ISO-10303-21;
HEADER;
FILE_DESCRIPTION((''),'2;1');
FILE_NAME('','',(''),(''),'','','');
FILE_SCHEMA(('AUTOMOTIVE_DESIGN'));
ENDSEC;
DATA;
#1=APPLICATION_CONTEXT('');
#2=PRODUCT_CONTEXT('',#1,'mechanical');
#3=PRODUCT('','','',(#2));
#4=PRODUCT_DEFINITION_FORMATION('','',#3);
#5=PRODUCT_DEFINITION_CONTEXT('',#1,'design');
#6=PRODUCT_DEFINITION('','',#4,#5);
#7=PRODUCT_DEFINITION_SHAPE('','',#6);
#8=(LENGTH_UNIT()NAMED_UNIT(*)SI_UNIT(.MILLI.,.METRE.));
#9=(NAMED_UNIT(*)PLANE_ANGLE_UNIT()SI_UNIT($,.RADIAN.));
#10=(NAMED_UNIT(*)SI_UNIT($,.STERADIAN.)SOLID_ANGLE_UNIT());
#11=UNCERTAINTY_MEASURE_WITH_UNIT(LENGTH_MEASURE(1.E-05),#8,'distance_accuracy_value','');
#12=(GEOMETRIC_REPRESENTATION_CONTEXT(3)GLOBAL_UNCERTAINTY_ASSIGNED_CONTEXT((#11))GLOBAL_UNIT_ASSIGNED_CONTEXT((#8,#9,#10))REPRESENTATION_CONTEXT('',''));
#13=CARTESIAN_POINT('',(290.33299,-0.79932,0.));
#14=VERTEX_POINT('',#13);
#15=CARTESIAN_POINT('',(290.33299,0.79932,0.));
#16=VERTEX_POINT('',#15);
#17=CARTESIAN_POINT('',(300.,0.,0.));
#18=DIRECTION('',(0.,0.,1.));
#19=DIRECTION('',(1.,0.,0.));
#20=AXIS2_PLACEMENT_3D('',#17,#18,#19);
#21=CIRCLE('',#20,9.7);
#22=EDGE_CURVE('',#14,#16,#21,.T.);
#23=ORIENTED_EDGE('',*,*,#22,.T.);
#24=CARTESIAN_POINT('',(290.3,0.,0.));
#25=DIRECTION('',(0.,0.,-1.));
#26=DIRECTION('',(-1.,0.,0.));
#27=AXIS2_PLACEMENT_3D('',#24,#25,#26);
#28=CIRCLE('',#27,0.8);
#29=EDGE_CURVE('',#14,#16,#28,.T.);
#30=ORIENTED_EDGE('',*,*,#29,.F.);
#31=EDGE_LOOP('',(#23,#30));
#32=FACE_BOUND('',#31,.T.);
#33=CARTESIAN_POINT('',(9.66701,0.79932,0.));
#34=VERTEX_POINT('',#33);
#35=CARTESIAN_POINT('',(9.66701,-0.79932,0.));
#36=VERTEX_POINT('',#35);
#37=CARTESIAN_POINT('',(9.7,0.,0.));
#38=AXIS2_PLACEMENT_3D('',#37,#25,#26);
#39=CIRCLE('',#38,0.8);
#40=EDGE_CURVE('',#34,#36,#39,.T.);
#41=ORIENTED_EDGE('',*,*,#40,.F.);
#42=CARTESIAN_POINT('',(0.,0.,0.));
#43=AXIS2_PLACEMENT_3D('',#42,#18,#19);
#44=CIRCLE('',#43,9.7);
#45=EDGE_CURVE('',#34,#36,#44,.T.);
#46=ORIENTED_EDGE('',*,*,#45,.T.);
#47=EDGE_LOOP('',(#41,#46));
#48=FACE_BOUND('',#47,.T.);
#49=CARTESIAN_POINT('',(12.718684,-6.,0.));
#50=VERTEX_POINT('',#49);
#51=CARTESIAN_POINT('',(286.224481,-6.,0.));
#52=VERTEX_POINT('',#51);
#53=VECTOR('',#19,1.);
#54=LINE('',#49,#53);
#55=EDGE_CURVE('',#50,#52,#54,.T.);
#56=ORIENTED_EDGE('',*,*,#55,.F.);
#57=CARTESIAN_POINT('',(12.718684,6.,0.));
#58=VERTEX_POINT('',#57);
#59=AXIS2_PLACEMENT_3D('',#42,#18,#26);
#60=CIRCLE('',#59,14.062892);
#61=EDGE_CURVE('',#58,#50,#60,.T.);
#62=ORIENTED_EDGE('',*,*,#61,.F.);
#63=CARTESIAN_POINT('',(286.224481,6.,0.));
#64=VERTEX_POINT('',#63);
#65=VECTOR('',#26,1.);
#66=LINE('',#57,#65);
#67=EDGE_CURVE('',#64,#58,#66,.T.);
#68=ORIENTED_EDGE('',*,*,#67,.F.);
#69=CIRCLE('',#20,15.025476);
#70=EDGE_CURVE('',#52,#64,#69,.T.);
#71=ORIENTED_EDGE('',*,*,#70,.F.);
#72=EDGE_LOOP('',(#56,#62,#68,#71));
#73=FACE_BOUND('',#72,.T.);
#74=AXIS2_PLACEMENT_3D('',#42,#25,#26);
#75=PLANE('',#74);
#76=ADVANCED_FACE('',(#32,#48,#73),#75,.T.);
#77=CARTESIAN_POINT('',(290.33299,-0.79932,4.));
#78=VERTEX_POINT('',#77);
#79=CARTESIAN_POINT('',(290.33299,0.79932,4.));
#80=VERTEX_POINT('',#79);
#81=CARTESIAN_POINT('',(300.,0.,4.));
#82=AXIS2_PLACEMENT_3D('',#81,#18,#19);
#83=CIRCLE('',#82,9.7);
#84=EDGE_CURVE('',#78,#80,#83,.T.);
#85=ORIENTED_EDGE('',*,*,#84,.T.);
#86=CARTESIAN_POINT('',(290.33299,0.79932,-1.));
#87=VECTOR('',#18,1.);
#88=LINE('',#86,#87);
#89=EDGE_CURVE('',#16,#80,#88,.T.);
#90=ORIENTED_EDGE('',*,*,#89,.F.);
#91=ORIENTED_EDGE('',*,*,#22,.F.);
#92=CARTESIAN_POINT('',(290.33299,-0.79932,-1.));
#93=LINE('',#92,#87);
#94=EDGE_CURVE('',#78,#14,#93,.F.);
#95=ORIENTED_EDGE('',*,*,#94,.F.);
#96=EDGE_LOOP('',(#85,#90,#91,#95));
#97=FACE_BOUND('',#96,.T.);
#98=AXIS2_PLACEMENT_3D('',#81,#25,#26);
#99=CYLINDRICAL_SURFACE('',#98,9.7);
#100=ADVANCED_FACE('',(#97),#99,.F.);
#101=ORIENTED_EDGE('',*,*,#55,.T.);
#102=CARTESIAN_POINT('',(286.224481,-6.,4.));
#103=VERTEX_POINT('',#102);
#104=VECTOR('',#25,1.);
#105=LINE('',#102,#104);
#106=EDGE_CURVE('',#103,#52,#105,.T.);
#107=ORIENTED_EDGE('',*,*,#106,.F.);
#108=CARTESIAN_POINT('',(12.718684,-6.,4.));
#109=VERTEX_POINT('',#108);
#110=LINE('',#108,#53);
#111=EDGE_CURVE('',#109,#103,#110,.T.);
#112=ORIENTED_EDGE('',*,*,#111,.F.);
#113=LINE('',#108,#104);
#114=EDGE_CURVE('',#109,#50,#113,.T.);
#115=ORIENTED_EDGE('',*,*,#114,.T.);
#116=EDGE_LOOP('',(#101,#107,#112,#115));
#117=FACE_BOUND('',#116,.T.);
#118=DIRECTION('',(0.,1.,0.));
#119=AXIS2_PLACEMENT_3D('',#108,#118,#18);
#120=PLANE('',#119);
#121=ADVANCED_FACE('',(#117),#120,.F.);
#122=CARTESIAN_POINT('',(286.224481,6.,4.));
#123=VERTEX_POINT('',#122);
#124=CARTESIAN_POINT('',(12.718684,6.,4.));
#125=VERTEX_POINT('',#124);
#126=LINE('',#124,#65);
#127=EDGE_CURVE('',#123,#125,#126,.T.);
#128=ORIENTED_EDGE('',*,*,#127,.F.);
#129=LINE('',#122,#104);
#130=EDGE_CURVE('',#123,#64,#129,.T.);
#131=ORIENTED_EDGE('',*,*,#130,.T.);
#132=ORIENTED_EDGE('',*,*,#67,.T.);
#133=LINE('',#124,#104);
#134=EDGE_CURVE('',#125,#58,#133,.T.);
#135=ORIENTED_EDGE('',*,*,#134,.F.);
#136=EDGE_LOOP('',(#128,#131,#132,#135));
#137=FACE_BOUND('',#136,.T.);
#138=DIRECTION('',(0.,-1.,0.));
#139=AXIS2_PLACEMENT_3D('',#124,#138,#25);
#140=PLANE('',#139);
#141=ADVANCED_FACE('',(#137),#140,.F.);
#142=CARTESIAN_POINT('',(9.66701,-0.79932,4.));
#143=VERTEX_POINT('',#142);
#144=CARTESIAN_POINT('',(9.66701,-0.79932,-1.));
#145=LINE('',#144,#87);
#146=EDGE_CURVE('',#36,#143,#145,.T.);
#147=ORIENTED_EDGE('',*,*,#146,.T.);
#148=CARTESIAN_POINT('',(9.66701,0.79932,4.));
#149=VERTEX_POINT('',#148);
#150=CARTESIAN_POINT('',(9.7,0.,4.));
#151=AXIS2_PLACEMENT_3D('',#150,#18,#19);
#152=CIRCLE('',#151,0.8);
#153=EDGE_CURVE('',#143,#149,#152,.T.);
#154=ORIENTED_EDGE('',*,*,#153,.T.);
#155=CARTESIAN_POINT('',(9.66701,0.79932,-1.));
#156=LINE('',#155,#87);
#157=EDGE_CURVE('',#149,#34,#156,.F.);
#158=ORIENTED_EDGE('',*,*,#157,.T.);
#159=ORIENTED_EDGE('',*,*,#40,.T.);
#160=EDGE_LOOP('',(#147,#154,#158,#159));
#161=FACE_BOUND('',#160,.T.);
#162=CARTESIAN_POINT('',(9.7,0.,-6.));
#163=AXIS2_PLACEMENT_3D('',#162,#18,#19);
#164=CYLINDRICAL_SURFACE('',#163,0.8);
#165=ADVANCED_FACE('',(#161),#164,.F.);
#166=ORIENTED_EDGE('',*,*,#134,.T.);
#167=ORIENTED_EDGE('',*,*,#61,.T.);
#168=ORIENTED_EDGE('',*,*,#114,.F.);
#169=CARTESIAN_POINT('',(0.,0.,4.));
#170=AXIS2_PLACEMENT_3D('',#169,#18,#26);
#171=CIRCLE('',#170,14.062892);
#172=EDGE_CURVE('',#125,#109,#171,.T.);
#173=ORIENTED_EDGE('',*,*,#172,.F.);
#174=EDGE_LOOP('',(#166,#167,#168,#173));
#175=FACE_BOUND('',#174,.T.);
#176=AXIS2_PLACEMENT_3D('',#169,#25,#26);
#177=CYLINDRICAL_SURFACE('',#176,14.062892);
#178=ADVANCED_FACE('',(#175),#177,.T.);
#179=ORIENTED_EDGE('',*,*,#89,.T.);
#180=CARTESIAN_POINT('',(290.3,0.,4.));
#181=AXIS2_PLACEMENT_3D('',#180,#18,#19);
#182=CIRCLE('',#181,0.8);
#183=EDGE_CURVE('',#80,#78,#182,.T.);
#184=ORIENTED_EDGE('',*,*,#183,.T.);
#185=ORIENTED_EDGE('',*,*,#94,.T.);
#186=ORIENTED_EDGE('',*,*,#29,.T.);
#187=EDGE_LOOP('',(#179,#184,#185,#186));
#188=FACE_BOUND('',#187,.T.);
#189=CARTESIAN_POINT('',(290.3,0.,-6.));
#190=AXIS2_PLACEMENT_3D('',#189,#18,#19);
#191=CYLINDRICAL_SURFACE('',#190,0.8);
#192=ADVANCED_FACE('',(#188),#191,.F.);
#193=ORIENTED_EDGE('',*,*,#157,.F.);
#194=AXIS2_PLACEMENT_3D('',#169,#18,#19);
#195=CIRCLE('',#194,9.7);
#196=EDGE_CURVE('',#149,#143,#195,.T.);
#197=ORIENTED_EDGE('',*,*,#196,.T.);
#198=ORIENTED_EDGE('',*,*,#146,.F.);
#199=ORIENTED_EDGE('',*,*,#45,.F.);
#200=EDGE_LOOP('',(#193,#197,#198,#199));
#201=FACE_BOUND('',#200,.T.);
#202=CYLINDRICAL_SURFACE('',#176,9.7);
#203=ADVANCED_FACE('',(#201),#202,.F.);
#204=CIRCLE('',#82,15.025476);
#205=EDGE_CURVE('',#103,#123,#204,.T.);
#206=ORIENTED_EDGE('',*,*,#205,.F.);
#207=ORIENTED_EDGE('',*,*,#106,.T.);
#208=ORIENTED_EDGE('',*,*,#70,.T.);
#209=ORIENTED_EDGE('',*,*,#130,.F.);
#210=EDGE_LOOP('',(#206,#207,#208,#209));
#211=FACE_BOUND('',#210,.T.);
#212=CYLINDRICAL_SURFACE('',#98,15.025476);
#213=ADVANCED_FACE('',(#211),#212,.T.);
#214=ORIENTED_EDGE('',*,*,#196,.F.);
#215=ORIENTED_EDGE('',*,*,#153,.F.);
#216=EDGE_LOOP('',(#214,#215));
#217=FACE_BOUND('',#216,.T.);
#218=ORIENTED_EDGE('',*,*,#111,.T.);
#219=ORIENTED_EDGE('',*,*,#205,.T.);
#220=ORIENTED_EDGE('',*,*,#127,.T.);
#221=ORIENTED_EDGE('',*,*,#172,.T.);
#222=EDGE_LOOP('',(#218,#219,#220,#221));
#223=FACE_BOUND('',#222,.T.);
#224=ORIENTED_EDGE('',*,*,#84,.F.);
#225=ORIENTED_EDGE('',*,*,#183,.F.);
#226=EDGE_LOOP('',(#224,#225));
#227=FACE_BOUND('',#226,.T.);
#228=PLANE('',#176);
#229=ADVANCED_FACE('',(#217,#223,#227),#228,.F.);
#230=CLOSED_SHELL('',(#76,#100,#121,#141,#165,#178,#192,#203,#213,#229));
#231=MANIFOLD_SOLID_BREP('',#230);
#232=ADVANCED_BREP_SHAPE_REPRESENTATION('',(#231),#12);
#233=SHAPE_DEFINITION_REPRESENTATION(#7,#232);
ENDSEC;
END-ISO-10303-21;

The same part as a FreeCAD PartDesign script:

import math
import FreeCAD as App
import Part
import Sketcher

V = App.Vector
Q = App.Units.Quantity

doc = App.newDocument("Part")
body = doc.addObject("PartDesign::Body", "Body")

# Sketch on XY plane
sketch1 = body.newObject("Sketcher::SketchObject", "Sketch")
sketch1.AttachmentSupport = (doc.getObject("XY_Plane"), [""])
sketch1.MapMode = "FlatFace"
sketch1.addGeometry(Part.LineSegment(V(286, 6, 0), V(13, 6, 0)), False)
sketch1.addGeometry(Part.ArcOfCircle(Part.Circle(V(0, 0, 0), V(0, 0, 1), 14), math.radians(25), math.radians(335)), False)
sketch1.addGeometry(Part.LineSegment(V(13, -6, 0), V(286, -6, 0)), False)
sketch1.addGeometry(Part.ArcOfCircle(Part.Circle(V(300, 0, 0), V(0, 0, 1), 15), math.radians(-156), math.radians(156)), False)
sketch1.addGeometry(Part.Circle(V(300, 0, 0), V(0, 0, 1), 10), False)
sketch1.addGeometry(Part.Circle(V(0, 0, 0), V(0, 0, 1), 10), False)
sketch1.addConstraint(Sketcher.Constraint("Coincident", 0, 2, 1, 1))
sketch1.addConstraint(Sketcher.Constraint("Coincident", 1, 2, 2, 1))
sketch1.addConstraint(Sketcher.Constraint("Coincident", 2, 2, 3, 1))
sketch1.addConstraint(Sketcher.Constraint("Coincident", 3, 2, 0, 1))
sketch1.addConstraint(Sketcher.Constraint("Horizontal", 0))
sketch1.addConstraint(Sketcher.Constraint("Horizontal", 2))
sketch1.addConstraint(Sketcher.Constraint("Coincident", 1, 3, -1, 1))
sketch1.addConstraint(Sketcher.Constraint("Coincident", 5, 3, -1, 1))
sketch1.addConstraint(Sketcher.Constraint("Coincident", 4, 3, 3, 3))
sketch1.addConstraint(Sketcher.Constraint("Equal", 4, 5))
sketch1.addConstraint(Sketcher.Constraint("Symmetric", 2, 2, 3, 2, -1))
sketch1.addConstraint(Sketcher.Constraint("Diameter", 4, Q("19.4 mm")))
sketch1.addConstraint(Sketcher.Constraint("DistanceX", -1, 1, 3, 3, Q("300 mm")))
sketch1.addConstraint(Sketcher.Constraint("DistanceY", -1, 1, 0, 2, Q("6 mm")))
sketch1.addConstraint(Sketcher.Constraint("Radius", 1, Q("14.062892 mm")))
sketch1.addConstraint(Sketcher.Constraint("Radius", 3, Q("15.025476 mm")))
pad1 = body.newObject("PartDesign::Pad", "Pad")
pad1.Profile = sketch1
pad1.Length = 4

# Sketch on XY plane
sketch2 = body.newObject("Sketcher::SketchObject", "Sketch001")
sketch2.AttachmentSupport = (doc.getObject("XY_Plane"), [""])
sketch2.MapMode = "FlatFace"
sketch2.AttachmentOffset = App.Placement(V(0, 0, 4), App.Rotation())
sketch2.addGeometry(Part.Circle(V(9.7, 0, 0), V(0, 0, 1), 0.8), False)
sketch2.addGeometry(Part.Circle(V(290.3, 0, 0), V(0, 0, 1), 0.8), False)
sketch2.addConstraint(Sketcher.Constraint("Equal", 0, 1))
sketch2.addConstraint(Sketcher.Constraint("PointOnObject", 0, 3, -1))
sketch2.addConstraint(Sketcher.Constraint("PointOnObject", 1, 3, -1))
sketch2.addConstraint(Sketcher.Constraint("Diameter", 0, Q("1.6 mm")))
sketch2.addConstraint(Sketcher.Constraint("DistanceX", -1, 1, 0, 3, Q("9.7 mm")))
sketch2.addConstraint(Sketcher.Constraint("DistanceX", -1, 1, 1, 3, Q("290.3 mm")))
pocket1 = body.newObject("PartDesign::Pocket", "Pocket")
pocket1.Profile = sketch2
pocket1.Length = 10

doc.recompute()
